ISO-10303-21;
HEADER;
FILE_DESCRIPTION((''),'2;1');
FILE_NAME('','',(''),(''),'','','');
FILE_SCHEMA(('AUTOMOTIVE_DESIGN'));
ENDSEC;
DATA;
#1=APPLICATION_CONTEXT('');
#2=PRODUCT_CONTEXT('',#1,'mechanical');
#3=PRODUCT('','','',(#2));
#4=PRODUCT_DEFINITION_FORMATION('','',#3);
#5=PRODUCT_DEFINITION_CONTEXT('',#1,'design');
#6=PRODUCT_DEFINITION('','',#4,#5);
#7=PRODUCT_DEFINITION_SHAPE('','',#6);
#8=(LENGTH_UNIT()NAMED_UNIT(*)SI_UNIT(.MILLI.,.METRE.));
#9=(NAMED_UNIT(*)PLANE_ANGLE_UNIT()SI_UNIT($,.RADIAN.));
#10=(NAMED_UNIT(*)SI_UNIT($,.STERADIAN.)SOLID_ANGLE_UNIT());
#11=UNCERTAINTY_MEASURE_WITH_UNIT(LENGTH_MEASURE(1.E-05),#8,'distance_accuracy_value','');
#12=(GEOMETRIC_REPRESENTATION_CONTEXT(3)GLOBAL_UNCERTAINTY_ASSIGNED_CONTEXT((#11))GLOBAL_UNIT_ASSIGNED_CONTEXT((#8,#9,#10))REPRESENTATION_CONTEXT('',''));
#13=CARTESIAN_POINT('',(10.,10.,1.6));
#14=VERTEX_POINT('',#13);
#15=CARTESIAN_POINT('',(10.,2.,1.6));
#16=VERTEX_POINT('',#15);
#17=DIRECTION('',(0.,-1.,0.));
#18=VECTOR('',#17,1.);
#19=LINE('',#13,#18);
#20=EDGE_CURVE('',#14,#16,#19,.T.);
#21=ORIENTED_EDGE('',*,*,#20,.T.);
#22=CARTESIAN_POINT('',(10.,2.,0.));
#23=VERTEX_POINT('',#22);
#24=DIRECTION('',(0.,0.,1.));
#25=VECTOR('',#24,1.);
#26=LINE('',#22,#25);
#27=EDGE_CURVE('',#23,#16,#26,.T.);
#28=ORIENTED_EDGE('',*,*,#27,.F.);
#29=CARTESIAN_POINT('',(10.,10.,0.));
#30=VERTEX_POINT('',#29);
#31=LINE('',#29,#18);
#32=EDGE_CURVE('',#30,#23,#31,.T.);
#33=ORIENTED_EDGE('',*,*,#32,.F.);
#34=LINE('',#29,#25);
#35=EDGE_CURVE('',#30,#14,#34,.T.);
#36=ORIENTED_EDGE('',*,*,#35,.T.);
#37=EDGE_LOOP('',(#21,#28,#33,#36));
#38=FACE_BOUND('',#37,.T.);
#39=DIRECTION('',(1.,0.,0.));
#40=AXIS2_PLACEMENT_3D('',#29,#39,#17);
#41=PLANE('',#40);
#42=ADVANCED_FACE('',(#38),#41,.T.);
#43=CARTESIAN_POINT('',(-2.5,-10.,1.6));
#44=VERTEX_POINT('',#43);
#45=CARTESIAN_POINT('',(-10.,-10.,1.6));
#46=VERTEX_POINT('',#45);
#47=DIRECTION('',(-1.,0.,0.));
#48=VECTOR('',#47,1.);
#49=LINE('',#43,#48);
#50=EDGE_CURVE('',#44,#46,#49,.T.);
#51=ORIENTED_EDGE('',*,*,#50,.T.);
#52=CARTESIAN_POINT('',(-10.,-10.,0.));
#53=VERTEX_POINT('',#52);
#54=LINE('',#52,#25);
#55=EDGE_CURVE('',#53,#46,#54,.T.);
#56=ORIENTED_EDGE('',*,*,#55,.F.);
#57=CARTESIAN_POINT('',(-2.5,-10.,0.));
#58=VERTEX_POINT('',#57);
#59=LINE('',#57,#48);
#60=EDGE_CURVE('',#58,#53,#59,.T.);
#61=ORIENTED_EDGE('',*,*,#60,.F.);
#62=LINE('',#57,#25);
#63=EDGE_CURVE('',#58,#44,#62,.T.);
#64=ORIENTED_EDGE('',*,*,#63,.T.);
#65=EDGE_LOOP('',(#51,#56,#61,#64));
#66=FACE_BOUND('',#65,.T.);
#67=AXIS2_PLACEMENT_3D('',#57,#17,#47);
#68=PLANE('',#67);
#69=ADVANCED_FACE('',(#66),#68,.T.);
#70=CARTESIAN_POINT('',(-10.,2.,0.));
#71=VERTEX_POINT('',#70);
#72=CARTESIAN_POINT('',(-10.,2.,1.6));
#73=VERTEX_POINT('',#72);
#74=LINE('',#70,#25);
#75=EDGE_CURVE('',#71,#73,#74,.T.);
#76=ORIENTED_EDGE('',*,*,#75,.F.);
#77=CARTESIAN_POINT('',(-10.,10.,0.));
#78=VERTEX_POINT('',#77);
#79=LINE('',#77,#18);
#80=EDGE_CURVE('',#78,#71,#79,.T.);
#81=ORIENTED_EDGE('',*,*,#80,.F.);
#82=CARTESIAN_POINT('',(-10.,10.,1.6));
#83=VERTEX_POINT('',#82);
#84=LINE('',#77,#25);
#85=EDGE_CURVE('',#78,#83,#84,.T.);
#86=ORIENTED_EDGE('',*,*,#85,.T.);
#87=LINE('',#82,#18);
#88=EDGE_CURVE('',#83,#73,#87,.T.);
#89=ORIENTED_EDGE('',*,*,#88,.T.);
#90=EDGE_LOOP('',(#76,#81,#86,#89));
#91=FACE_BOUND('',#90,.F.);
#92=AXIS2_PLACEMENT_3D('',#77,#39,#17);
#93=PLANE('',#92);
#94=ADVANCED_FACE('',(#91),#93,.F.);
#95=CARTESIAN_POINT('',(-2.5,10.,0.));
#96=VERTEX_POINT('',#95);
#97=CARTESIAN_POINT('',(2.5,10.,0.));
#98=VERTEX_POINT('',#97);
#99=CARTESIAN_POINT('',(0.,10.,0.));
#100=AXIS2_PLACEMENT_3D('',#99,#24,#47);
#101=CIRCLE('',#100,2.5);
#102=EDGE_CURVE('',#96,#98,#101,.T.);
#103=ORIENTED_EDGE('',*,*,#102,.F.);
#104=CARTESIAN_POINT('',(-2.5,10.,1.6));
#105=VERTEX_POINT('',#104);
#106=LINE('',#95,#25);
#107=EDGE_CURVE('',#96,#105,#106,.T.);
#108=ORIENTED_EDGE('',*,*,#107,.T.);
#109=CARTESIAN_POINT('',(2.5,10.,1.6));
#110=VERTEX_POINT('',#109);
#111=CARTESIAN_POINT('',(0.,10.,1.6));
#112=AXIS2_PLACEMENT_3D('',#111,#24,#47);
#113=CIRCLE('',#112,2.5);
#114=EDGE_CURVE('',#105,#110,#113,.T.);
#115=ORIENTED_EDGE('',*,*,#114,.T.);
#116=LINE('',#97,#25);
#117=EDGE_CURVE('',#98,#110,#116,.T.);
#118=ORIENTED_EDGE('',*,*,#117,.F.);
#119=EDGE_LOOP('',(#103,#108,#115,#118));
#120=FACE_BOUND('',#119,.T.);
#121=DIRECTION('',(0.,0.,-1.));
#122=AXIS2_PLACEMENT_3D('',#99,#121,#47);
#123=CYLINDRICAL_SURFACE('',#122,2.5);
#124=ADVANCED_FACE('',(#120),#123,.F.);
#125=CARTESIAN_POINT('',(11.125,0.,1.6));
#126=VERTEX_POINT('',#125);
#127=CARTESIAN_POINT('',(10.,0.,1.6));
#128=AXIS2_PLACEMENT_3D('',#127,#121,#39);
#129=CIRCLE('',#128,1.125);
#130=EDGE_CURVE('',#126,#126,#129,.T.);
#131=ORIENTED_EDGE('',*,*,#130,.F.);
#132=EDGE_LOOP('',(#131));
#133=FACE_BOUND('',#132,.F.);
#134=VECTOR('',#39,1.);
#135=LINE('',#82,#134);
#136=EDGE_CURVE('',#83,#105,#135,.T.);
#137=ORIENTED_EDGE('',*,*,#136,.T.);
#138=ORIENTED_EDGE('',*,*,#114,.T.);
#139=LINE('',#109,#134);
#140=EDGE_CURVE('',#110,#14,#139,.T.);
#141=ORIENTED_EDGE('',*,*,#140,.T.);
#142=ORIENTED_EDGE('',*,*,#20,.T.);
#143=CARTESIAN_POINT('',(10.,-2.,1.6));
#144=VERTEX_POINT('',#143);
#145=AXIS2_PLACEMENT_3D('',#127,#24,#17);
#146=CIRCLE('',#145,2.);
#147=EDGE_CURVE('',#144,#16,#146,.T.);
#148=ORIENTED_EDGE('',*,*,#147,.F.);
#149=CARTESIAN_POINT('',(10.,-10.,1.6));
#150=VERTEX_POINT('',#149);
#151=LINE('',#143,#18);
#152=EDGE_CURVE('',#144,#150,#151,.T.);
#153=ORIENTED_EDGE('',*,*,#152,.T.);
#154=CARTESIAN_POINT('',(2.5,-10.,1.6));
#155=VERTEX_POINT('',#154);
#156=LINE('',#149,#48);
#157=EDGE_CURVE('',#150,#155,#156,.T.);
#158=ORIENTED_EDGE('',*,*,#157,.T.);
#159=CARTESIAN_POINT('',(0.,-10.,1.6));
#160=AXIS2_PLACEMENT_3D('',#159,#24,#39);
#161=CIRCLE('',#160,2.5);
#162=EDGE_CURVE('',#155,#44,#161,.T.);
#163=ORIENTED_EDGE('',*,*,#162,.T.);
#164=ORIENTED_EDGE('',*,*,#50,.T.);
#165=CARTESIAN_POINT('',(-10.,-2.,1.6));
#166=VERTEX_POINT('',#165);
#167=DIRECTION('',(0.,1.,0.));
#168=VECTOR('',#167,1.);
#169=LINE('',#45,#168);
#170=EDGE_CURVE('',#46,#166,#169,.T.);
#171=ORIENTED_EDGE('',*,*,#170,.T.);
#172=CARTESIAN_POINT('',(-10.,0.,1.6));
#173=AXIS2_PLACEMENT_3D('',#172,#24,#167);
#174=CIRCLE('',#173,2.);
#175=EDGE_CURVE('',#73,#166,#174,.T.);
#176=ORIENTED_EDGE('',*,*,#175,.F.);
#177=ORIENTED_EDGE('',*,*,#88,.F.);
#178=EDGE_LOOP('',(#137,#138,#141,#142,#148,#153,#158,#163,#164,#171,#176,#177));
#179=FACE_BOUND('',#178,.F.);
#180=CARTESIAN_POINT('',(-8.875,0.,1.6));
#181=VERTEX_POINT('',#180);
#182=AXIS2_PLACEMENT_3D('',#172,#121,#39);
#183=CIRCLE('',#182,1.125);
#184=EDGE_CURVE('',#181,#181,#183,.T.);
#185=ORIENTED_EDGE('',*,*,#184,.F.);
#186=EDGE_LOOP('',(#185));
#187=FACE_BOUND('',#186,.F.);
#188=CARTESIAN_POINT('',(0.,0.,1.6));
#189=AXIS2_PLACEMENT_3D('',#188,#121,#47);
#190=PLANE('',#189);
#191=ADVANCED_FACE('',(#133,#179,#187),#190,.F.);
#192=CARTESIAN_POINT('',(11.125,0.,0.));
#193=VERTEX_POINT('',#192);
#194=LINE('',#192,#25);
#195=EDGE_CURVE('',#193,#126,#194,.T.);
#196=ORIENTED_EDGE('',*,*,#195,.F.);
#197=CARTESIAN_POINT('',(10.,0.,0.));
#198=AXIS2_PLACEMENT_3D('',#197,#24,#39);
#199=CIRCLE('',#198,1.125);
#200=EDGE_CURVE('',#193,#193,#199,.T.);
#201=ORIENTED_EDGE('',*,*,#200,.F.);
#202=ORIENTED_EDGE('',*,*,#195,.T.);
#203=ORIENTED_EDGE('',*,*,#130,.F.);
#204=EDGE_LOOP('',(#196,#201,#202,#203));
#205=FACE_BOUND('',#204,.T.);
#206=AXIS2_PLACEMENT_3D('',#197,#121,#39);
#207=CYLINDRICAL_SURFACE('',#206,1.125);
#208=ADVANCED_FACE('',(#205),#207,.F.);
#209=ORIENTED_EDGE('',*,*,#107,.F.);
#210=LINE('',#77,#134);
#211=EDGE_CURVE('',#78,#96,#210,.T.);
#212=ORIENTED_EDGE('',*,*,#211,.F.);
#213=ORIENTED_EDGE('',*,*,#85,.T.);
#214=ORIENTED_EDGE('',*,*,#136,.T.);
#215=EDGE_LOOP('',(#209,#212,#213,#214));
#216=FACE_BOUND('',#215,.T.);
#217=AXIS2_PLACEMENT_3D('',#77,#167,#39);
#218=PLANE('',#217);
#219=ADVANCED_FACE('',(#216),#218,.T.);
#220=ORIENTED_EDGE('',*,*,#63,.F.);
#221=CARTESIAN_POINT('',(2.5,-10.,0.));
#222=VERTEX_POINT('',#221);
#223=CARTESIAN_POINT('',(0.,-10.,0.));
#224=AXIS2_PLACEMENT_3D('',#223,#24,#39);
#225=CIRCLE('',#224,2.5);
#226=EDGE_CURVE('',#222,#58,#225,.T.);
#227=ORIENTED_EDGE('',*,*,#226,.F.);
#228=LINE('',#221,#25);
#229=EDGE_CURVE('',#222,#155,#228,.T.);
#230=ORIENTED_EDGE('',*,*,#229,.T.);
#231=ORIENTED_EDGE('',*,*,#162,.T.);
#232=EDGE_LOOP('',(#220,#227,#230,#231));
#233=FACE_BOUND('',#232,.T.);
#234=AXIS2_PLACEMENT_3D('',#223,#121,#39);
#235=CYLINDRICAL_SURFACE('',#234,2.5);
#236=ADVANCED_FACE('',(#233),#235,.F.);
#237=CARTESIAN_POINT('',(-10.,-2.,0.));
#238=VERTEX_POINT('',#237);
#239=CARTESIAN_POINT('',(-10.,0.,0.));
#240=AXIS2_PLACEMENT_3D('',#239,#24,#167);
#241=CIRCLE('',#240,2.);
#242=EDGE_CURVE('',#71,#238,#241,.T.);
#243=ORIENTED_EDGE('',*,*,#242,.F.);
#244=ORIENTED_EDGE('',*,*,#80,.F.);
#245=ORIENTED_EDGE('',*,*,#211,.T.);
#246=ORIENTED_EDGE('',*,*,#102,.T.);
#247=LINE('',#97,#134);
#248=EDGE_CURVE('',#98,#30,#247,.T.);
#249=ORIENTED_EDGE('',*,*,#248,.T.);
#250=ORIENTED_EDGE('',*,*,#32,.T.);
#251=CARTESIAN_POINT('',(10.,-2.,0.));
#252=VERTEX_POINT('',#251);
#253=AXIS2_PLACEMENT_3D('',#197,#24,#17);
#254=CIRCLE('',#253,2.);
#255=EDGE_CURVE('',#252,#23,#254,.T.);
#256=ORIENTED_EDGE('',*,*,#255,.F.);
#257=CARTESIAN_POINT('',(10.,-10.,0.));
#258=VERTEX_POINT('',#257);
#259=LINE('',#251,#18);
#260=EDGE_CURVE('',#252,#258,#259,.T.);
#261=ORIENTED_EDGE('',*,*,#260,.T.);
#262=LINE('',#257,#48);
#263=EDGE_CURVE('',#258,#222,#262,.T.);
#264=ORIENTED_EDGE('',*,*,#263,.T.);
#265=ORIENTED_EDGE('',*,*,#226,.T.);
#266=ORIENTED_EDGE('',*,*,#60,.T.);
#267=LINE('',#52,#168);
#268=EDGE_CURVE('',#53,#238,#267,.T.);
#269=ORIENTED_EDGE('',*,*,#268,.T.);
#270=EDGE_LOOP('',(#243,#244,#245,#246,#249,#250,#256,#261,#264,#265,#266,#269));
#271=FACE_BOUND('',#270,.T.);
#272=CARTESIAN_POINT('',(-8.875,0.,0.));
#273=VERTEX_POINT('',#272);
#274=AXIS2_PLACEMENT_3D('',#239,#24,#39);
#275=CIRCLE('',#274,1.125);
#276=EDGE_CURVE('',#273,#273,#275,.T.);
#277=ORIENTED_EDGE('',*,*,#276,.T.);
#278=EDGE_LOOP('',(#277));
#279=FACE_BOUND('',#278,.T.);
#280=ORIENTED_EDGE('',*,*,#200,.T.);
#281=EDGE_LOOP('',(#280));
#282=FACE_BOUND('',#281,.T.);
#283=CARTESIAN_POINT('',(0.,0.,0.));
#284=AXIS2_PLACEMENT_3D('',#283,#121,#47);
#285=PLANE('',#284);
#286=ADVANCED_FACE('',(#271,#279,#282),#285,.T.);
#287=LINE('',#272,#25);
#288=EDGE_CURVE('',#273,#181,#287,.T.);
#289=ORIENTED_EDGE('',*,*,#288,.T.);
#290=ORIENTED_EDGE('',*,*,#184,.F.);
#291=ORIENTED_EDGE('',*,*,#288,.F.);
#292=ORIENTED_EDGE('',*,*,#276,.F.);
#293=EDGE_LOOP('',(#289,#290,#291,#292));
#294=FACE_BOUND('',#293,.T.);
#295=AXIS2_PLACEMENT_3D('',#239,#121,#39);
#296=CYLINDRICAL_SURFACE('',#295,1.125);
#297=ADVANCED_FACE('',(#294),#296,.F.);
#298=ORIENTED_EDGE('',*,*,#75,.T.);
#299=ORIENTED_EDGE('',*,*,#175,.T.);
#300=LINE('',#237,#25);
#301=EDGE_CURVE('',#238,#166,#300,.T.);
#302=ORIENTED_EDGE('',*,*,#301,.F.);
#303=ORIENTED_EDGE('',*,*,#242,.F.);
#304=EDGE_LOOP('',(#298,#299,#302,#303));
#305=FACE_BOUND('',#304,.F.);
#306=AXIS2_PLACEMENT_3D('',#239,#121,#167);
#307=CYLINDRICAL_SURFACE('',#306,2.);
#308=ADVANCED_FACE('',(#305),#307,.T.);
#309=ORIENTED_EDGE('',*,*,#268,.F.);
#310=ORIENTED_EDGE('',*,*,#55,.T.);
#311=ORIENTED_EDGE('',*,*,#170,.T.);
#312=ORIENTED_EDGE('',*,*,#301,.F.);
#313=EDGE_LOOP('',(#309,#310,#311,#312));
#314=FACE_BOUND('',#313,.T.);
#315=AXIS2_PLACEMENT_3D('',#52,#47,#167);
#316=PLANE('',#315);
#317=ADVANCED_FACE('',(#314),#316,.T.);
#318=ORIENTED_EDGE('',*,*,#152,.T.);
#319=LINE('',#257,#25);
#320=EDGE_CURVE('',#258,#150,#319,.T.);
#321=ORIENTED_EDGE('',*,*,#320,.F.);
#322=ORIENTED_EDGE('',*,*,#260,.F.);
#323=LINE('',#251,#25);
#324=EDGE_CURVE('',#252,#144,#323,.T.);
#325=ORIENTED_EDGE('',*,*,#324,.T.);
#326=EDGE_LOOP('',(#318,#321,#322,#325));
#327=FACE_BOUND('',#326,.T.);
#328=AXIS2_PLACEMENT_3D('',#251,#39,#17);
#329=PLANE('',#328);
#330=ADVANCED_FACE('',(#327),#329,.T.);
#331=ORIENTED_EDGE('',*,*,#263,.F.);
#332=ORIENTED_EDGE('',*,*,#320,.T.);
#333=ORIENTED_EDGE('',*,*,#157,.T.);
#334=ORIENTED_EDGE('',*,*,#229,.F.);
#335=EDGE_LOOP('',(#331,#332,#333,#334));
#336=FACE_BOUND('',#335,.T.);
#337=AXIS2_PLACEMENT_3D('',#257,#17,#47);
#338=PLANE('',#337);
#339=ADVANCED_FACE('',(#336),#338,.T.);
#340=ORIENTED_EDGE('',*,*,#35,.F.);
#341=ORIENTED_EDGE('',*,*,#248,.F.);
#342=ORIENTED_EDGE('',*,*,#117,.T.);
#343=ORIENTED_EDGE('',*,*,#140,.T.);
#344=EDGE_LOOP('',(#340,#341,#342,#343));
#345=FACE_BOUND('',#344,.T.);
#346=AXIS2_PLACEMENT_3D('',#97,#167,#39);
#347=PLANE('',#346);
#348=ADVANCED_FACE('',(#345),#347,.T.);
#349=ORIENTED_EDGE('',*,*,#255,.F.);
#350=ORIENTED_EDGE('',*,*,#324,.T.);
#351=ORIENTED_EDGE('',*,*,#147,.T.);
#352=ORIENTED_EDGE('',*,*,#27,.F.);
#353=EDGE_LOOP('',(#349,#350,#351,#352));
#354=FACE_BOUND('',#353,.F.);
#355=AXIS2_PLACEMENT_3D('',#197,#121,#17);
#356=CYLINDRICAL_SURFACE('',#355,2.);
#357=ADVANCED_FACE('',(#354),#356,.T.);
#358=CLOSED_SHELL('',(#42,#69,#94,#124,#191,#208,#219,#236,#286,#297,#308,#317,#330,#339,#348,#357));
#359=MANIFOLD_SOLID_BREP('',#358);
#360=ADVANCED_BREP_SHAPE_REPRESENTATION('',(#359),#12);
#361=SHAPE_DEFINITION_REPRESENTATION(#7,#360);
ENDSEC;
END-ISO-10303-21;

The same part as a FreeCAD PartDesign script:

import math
import FreeCAD as App
import Part
import Sketcher
from FreeCAD import Vector
Q = App.Units.Quantity

doc = App.newDocument("Part")
body = doc.addObject("PartDesign::Body", "Body")

# Sketch on XY plane
sketch1 = body.newObject("Sketcher::SketchObject", "Sketch")
sketch1.AttachmentSupport = (doc.getObject("XY_Plane"), [""])
sketch1.MapMode = "FlatFace"
sketch1.addGeometry(Part.LineSegment(Vector(-2.5, 10, 0), Vector(-10, 10, 0)), False)
sketch1.addGeometry(Part.LineSegment(Vector(-10, 10, 0), Vector(-10, 2, 0)), False)
sketch1.addGeometry(Part.ArcOfCircle(Part.Circle(Vector(-10, 0, 0), Vector(0, 0, 1), 2), math.radians(90), math.radians(270)), False)
sketch1.addGeometry(Part.LineSegment(Vector(-10, -2, 0), Vector(-10, -10, 0)), False)
sketch1.addGeometry(Part.LineSegment(Vector(-10, -10, 0), Vector(-2.5, -10, 0)), False)
sketch1.addGeometry(Part.ArcOfCircle(Part.Circle(Vector(0, -10, 0), Vector(0, 0, 1), 2.5), math.radians(0), math.radians(180)), False)
sketch1.addGeometry(Part.LineSegment(Vector(2.5, -10, 0), Vector(10, -10, 0)), False)
sketch1.addGeometry(Part.LineSegment(Vector(10, -10, 0), Vector(10, -2, 0)), False)
sketch1.addGeometry(Part.ArcOfCircle(Part.Circle(Vector(10, 0, 0), Vector(0, 0, 1), 2), math.radians(-90), math.radians(90)), False)
sketch1.addGeometry(Part.LineSegment(Vector(10, 2, 0), Vector(10, 10, 0)), False)
sketch1.addGeometry(Part.LineSegment(Vector(10, 10, 0), Vector(2.5, 10, 0)), False)
sketch1.addGeometry(Part.ArcOfCircle(Part.Circle(Vector(0, 10, 0), Vector(0, 0, 1), 2.5), math.radians(180), math.radians(360)), False)
sketch1.addConstraint(Sketcher.Constraint("Coincident", 0, 2, 1, 1))
sketch1.addConstraint(Sketcher.Constraint("Coincident", 1, 2, 2, 1))
sketch1.addConstraint(Sketcher.Constraint("Coincident", 2, 2, 3, 1))
sketch1.addConstraint(Sketcher.Constraint("Coincident", 3, 2, 4, 1))
sketch1.addConstraint(Sketcher.Constraint("Coincident", 4, 2, 5, 2))
sketch1.addConstraint(Sketcher.Constraint("Coincident", 5, 1, 6, 1))
sketch1.addConstraint(Sketcher.Constraint("Coincident", 6, 2, 7, 1))
sketch1.addConstraint(Sketcher.Constraint("Coincident", 7, 2, 8, 1))
sketch1.addConstraint(Sketcher.Constraint("Coincident", 8, 2, 9, 1))
sketch1.addConstraint(Sketcher.Constraint("Coincident", 9, 2, 10, 1))
sketch1.addConstraint(Sketcher.Constraint("Coincident", 10, 2, 11, 2))
sketch1.addConstraint(Sketcher.Constraint("Coincident", 11, 1, 0, 1))
sketch1.addConstraint(Sketcher.Constraint("Horizontal", 0))
sketch1.addConstraint(Sketcher.Constraint("Vertical", 1))
sketch1.addConstraint(Sketcher.Constraint("Vertical", 3))
sketch1.addConstraint(Sketcher.Constraint("Horizontal", 4))
sketch1.addConstraint(Sketcher.Constraint("Horizontal", 6))
sketch1.addConstraint(Sketcher.Constraint("Vertical", 7))
sketch1.addConstraint(Sketcher.Constraint("Vertical", 9))
sketch1.addConstraint(Sketcher.Constraint("Horizontal", 10))
sketch1.addConstraint(Sketcher.Constraint("Equal", 2, 8))
sketch1.addConstraint(Sketcher.Constraint("Equal", 5, 11))
sketch1.addConstraint(Sketcher.Constraint("Symmetric", 2, 3, 8, 3, -1, 1))
sketch1.addConstraint(Sketcher.Constraint("Symmetric", 5, 3, 11, 3, -1, 1))
sketch1.addConstraint(Sketcher.Constraint("Symmetric", 0, 2, 6, 2, -1, 1))
sketch1.addConstraint(Sketcher.Constraint("Symmetric", 3, 2, 9, 2, -1, 1))
sketch1.addConstraint(Sketcher.Constraint("Symmetric", 4, 2, 5, 1, -2))
sketch1.addConstraint(Sketcher.Constraint("Symmetric", 2, 2, 7, 2, -2))
sketch1.addConstraint(Sketcher.Constraint("Horizontal", 11, 3, 0, 2))
sketch1.addConstraint(Sketcher.Constraint("Vertical", 2, 3, 0, 2))
sketch1.addConstraint(Sketcher.Constraint("Radius", 2, Q("2 mm")))
sketch1.addConstraint(Sketcher.Constraint("Radius", 5, Q("2.5 mm")))
sketch1.addConstraint(Sketcher.Constraint("DistanceY", 1, 2, 1, 1, Q("8 mm")))
sketch1.addConstraint(Sketcher.Constraint("DistanceX", 0, 2, 0, 1, Q("7.5 mm")))
pad1 = body.newObject("PartDesign::Pad", "Pad")
pad1.Profile = sketch1
pad1.Length = 1.6

# Sketch on XY plane
sketch2 = body.newObject("Sketcher::SketchObject", "Sketch001")
sketch2.AttachmentSupport = (doc.getObject("XY_Plane"), [""])
sketch2.MapMode = "FlatFace"
sketch2.addGeometry(Part.Circle(Vector(-10, 0, 0), Vector(0, 0, 1), 1.1), False)
sketch2.addGeometry(Part.Circle(Vector(10, 0, 0), Vector(0, 0, 1), 1.1), False)
sketch2.addConstraint(Sketcher.Constraint("Equal", 0, 1))
sketch2.addConstraint(Sketcher.Constraint("Symmetric", 0, 3, 1, 3, -1, 1))
sketch2.addConstraint(Sketcher.Constraint("PointOnObject", 0, 3, -1))
sketch2.addConstraint(Sketcher.Constraint("Diameter", 0, Q("2.25 mm")))
sketch2.addConstraint(Sketcher.Constraint("DistanceX", 0, 3, -1, 1, Q("10 mm")))
pocket1 = body.newObject("PartDesign::Pocket", "Pocket")
pocket1.Profile = sketch2
pocket1.Type = "ThroughAll"
pocket1.Reversed = True

doc.recompute()
